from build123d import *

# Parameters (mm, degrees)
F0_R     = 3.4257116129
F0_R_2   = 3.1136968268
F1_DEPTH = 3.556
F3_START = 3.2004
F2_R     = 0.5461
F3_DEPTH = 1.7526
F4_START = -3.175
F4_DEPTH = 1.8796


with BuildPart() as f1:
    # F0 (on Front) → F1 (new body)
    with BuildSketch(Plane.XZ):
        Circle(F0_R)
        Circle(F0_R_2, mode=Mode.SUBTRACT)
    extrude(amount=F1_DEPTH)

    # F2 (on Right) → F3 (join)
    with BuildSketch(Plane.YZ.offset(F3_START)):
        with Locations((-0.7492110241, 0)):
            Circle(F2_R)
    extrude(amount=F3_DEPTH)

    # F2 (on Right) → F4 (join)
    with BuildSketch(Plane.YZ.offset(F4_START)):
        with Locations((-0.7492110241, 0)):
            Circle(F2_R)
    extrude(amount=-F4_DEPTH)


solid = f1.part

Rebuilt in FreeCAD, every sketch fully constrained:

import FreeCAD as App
import Part
import Sketcher
Q = App.Units.Quantity

doc = App.newDocument("Part")
params = doc.addObject("Spreadsheet::Sheet", "Params")
for row, (alias, value) in enumerate([
    ("pad1_length", "0.14 in"),
    ("sketch2_diameter", "0.043 in"),
    ("pad2_length", "0.069 in"),
    ("sketch3_diameter", "0.043 in"),
    ("pad3_length", "0.074 in"),
], start=1):
    params.set(f"A{row}", alias)
    params.set(f"B{row}", "=" + value)
    params.setAlias(f"B{row}", alias)

body = doc.addObject("PartDesign::Body", "Body")

sketch1 = body.newObject("Sketcher::SketchObject", "Sketch")
sketch1.AttachmentSupport = (doc.getObject("XZ_Plane"), [""])
sketch1.MapMode = "FlatFace"
sketch1.addGeometry(Part.Circle(App.Vector(0, 0, 0), App.Vector(0, 0, 1), 3.4), False)
sketch1.addGeometry(Part.Circle(App.Vector(0, 0, 0), App.Vector(0, 0, 1), 3.1), False)
sketch1.addConstraint(Sketcher.Constraint("Coincident", 0, 3, -1, 1))
sketch1.addConstraint(Sketcher.Constraint("Coincident", 1, 3, -1, 1))
sketch1.addConstraint(Sketcher.Constraint("Diameter", 0, 6.851423))
sketch1.addConstraint(Sketcher.Constraint("Diameter", 1, 6.227394))
pad1 = body.newObject("PartDesign::Pad", "Pad")
pad1.Profile = sketch1
pad1.setExpression("Length", "Params.pad1_length")

sketch2 = body.newObject("Sketcher::SketchObject", "Sketch001")
sketch2.AttachmentSupport = (doc.getObject("YZ_Plane"), [""])
sketch2.MapMode = "FlatFace"
sketch2.AttachmentOffset = App.Placement(App.Vector(0, 0, 0.126 * 25.4), App.Rotation())
sketch2.addGeometry(Part.Circle(App.Vector(-0.7, 0, 0), App.Vector(0, 0, 1), 0.5), False)
sketch2.addConstraint(Sketcher.Constraint("PointOnObject", 0, 3, -1))
sketch2.addConstraint(Sketcher.Constraint("Diameter", 0, Q("0.043 in")))
sketch2.addConstraint(Sketcher.Constraint("DistanceX", 0, 3, -1, 1, 0.749211))
sketch2.setExpression("Constraints[1]", "Params.sketch2_diameter")
pad2 = body.newObject("PartDesign::Pad", "Pad001")
pad2.Profile = sketch2
pad2.setExpression("Length", "Params.pad2_length")

sketch3 = body.newObject("Sketcher::SketchObject", "Sketch002")
sketch3.AttachmentSupport = (doc.getObject("YZ_Plane"), [""])
sketch3.MapMode = "FlatFace"
sketch3.AttachmentOffset = App.Placement(App.Vector(0, 0, -0.125 * 25.4), App.Rotation())
sketch3.addGeometry(Part.Circle(App.Vector(-0.7, 0, 0), App.Vector(0, 0, 1), 0.5), False)
sketch3.addConstraint(Sketcher.Constraint("PointOnObject", 0, 3, -1))
sketch3.addConstraint(Sketcher.Constraint("Diameter", 0, Q("0.043 in")))
sketch3.addConstraint(Sketcher.Constraint("DistanceX", 0, 3, -1, 1, 0.749211))
sketch3.setExpression("Constraints[1]", "Params.sketch3_diameter")
pad3 = body.newObject("PartDesign::Pad", "Pad002")
pad3.Profile = sketch3
pad3.setExpression("Length", "Params.pad3_length")
pad3.Reversed = True

doc.recompute()
